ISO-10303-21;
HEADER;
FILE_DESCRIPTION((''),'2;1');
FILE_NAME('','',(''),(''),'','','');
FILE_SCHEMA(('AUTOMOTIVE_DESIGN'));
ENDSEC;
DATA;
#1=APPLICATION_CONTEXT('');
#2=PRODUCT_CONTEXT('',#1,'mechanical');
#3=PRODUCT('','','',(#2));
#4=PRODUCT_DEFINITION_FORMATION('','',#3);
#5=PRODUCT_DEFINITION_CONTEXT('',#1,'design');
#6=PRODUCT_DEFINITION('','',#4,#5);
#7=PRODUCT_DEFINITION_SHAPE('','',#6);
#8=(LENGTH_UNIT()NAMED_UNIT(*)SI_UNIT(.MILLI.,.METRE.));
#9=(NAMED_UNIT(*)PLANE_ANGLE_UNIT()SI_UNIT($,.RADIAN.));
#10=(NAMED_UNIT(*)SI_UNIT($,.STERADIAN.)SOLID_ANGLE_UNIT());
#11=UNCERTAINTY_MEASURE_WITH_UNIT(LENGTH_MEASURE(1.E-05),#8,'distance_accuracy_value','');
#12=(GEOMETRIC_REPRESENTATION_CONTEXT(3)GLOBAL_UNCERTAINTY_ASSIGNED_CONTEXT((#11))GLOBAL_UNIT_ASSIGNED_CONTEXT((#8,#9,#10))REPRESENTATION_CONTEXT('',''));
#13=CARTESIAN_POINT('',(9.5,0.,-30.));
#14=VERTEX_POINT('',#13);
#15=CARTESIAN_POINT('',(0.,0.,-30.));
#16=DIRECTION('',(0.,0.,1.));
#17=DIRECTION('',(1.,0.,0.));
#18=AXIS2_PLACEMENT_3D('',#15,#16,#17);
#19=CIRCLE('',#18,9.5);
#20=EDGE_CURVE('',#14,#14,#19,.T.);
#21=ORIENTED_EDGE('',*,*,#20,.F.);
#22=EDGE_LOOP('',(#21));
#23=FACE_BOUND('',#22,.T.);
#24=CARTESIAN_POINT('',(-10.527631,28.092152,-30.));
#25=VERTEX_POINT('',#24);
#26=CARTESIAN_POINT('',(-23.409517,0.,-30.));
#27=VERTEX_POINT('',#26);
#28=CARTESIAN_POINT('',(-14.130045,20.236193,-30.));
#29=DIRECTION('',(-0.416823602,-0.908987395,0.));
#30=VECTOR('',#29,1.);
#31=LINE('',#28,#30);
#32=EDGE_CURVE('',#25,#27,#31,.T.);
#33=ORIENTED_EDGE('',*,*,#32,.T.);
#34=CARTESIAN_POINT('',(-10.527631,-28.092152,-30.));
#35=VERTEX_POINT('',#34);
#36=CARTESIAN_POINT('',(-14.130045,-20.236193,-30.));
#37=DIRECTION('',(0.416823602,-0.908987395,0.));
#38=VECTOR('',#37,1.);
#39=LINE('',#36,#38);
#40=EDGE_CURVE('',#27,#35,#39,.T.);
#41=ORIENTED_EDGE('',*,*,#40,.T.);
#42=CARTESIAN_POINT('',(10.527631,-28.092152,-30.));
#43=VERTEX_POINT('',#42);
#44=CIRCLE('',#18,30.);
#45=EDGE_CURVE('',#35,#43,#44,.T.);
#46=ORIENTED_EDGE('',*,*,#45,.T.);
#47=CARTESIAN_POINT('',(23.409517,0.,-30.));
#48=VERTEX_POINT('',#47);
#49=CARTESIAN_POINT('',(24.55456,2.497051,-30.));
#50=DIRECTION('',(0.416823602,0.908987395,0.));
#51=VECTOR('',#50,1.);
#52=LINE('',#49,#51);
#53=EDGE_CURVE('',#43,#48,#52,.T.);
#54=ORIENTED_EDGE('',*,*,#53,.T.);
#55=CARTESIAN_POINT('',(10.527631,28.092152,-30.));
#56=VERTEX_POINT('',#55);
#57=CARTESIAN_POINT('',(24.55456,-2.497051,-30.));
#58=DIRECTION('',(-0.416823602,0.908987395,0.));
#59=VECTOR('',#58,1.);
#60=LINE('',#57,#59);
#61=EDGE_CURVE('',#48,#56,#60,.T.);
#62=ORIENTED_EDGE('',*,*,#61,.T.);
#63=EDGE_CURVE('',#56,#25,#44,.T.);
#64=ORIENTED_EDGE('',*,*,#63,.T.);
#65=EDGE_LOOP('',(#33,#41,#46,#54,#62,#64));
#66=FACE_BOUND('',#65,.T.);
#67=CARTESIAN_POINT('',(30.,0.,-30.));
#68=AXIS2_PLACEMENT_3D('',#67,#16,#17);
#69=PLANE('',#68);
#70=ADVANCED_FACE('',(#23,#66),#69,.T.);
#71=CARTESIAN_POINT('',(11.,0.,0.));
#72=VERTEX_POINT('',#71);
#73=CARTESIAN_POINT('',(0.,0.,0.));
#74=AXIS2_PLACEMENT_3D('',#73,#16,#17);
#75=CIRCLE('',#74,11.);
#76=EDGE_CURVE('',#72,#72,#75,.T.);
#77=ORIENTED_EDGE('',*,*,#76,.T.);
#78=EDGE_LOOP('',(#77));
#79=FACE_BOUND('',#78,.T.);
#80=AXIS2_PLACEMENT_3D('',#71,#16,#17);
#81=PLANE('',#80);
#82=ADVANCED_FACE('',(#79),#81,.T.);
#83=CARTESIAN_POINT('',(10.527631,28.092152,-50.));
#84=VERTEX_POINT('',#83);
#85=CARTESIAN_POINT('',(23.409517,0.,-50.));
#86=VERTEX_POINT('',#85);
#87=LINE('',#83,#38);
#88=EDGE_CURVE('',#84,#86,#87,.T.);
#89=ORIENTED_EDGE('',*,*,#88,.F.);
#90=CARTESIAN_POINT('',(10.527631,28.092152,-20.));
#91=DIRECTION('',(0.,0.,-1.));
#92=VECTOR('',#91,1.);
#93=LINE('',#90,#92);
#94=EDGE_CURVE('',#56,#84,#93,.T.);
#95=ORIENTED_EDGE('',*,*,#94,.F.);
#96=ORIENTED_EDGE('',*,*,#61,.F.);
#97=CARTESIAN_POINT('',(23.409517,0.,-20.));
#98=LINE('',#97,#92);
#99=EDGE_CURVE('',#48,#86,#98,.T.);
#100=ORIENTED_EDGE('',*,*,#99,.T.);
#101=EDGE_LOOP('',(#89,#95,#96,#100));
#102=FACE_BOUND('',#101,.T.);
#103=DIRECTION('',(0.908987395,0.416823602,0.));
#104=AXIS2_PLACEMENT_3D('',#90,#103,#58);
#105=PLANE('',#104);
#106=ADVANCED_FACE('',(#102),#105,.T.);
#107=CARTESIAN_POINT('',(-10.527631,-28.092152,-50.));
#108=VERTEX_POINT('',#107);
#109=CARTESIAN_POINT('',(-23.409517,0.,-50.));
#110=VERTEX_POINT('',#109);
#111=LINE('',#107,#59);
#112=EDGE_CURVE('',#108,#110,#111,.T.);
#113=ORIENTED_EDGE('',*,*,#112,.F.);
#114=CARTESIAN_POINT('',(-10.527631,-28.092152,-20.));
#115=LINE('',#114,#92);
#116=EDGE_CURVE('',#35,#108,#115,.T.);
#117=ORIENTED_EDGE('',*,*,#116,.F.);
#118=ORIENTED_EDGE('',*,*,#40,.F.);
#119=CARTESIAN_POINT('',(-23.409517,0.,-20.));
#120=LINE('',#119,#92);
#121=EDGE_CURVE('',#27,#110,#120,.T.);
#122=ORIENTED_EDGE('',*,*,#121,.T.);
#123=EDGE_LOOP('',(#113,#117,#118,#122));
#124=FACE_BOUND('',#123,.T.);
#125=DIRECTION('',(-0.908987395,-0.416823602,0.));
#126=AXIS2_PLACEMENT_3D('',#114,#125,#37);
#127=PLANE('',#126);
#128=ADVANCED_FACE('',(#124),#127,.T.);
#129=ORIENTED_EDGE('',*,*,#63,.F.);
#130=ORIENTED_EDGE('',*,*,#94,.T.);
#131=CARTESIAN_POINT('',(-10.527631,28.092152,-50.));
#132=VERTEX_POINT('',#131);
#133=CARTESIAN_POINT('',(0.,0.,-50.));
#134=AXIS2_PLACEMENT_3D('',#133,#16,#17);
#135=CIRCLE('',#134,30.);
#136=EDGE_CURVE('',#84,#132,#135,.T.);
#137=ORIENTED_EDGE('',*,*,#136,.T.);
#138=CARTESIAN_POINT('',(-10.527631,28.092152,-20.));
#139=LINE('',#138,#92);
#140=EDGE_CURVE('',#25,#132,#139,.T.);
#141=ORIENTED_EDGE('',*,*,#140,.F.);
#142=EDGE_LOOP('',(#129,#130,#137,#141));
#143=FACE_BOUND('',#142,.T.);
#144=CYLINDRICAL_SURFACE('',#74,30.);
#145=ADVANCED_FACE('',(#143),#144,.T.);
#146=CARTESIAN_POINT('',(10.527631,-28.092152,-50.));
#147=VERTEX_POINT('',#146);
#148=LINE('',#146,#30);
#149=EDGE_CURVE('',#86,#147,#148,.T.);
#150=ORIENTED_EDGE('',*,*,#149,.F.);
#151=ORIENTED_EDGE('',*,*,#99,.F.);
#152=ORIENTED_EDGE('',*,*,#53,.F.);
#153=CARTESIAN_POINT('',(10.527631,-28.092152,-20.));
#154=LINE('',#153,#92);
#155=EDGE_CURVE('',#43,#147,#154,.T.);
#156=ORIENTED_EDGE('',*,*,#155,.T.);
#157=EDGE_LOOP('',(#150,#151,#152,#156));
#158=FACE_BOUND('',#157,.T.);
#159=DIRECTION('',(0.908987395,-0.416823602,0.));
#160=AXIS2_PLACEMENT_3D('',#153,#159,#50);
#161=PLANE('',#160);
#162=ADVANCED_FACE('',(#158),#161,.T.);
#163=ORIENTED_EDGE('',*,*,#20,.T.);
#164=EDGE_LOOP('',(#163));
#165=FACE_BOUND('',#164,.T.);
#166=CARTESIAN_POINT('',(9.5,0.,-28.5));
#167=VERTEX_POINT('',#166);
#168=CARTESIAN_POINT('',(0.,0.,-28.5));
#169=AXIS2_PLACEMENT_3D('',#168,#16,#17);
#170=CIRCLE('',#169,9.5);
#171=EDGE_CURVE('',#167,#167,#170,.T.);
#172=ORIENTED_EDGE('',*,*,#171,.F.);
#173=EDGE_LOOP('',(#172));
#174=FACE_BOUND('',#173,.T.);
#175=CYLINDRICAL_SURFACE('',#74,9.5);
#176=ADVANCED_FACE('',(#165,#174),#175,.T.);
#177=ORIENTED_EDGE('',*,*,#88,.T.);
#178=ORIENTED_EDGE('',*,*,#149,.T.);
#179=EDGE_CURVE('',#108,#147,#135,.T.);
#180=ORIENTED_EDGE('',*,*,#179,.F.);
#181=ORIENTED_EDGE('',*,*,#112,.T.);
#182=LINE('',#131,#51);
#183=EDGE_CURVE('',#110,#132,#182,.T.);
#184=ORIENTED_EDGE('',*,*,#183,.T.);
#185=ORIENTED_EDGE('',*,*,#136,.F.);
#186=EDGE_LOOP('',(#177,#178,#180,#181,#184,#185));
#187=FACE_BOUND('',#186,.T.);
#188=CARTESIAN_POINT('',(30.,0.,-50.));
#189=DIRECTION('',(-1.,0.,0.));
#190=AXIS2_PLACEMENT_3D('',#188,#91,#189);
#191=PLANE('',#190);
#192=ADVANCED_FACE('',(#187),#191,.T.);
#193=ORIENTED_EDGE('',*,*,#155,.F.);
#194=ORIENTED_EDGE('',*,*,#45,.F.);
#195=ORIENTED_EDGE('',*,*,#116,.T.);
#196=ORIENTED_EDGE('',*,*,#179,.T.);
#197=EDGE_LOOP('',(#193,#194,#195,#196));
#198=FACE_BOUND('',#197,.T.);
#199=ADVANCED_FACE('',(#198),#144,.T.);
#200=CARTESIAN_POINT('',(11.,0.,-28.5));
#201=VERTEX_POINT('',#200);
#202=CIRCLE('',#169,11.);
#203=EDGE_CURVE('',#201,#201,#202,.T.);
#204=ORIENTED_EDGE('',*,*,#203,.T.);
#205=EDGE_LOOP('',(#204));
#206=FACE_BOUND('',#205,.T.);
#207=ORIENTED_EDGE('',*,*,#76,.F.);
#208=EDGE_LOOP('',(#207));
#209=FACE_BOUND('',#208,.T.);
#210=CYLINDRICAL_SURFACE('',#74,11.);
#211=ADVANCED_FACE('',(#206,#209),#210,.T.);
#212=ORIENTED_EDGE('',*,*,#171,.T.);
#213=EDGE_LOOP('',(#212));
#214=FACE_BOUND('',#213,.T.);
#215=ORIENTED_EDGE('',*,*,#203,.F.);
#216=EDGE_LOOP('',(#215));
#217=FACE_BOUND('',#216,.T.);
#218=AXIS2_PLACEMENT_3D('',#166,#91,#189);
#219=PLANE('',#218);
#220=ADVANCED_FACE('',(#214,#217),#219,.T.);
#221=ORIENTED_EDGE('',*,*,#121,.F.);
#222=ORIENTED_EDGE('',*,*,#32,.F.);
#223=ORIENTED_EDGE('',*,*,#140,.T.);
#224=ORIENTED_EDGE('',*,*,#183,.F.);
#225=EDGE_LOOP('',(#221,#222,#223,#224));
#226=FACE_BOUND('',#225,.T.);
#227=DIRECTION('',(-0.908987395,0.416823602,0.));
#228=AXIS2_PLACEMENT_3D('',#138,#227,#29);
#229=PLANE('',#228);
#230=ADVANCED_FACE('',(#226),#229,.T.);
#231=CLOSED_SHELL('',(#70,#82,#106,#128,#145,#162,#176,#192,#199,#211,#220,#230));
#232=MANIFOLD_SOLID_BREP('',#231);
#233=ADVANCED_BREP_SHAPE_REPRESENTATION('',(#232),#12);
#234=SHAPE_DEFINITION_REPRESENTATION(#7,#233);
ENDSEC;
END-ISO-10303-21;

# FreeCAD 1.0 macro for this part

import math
import FreeCAD as App
import Part
import Sketcher
from FreeCAD import Vector

doc = App.newDocument("Part")
body = doc.addObject("PartDesign::Body", "Body")

# Sketch on XZ plane
sketch1 = body.newObject("Sketcher::SketchObject", "Sketch")
sketch1.AttachmentSupport = (doc.getObject("XZ_Plane"), [""])
sketch1.MapMode = "FlatFace"
sketch1.addGeometry([
    Part.LineSegment(Vector(0, -50, 0), Vector(0, 0, 0)),  # 0
    Part.LineSegment(Vector(0, 0, 0), Vector(11, 0, 0)),  # 1
    Part.LineSegment(Vector(11, 0, 0), Vector(11, -28.5, 0)),  # 2
    Part.LineSegment(Vector(11, -28.5, 0), Vector(9.5, -28.5, 0)),  # 3
    Part.LineSegment(Vector(9.5, -28.5, 0), Vector(9.5, -30, 0)),  # 4
    Part.LineSegment(Vector(9.5, -30, 0), Vector(30, -30, 0)),  # 5
    Part.LineSegment(Vector(30, -30, 0), Vector(30, -50, 0)),  # 6
    Part.LineSegment(Vector(30, -50, 0), Vector(0, -50, 0)),  # 7
], False)
sketch1.addConstraint([
    Sketcher.Constraint("Coincident", 0, 2, 1, 1),
    Sketcher.Constraint("Coincident", 1, 2, 2, 1),
    Sketcher.Constraint("Coincident", 2, 2, 3, 1),
    Sketcher.Constraint("Coincident", 3, 2, 4, 1),
    Sketcher.Constraint("Coincident", 4, 2, 5, 1),
    Sketcher.Constraint("Coincident", 5, 2, 6, 1),
    Sketcher.Constraint("Coincident", 6, 2, 7, 1),
    Sketcher.Constraint("Coincident", 7, 2, 0, 1),
    Sketcher.Constraint("Vertical", 0),
    Sketcher.Constraint("Horizontal", 1),
    Sketcher.Constraint("Vertical", 2),
    Sketcher.Constraint("Horizontal", 3),
    Sketcher.Constraint("Vertical", 4),
    Sketcher.Constraint("Horizontal", 5),
    Sketcher.Constraint("Vertical", 6),
    Sketcher.Constraint("Horizontal", 7),
    Sketcher.Constraint("Coincident", 0, 2, -1, 1),
    Sketcher.Constraint("Equal", 3, 4),
    Sketcher.Constraint("DistanceX", 1, 1, 1, 2, 11.0),
    Sketcher.Constraint("DistanceX", 7, 2, 7, 1, 30.0),
    Sketcher.Constraint("DistanceY", 0, 1, 0, 2, 50.0),
    Sketcher.Constraint("DistanceY", 6, 2, 6, 1, 20.0),
    Sketcher.Constraint("DistanceX", 3, 2, 3, 1, 1.5),
])
revolution = body.newObject("PartDesign::Revolution", "Revolution")
revolution.Profile = sketch1
revolution.ReferenceAxis = (sketch1, ["V_Axis"])
revolution.Angle = 360

# Sketch on XY plane
sketch2 = body.newObject("Sketcher::SketchObject", "Sketch001")
sketch2.AttachmentSupport = (doc.getObject("XY_Plane"), [""])
sketch2.MapMode = "FlatFace"
sketch2.AttachmentOffset = App.Placement(Vector(0, 0, -20), App.Rotation())
sketch2.addGeometry([
    Part.Circle(Vector(0, 0, 0), Vector(0, 0, 1), 36),  # 0
    Part.LineSegment(Vector(23, 0, 0), Vector(11, 28, 0)),  # 1
    Part.ArcOfCircle(Part.Circle(Vector(0, 0, 0), Vector(0, 0, 1), 30), math.radians(69), math.radians(111)),  # 2
    Part.LineSegment(Vector(-11, 28, 0), Vector(-23, 0, 0)),  # 3
    Part.LineSegment(Vector(-23, 0, 0), Vector(-11, -28, 0)),  # 4
    Part.ArcOfCircle(Part.Circle(Vector(0, 0, 0), Vector(0, 0, 1), 30), math.radians(-111), math.radians(-69)),  # 5
    Part.LineSegment(Vector(11, -28, 0), Vector(23, 0, 0)),  # 6
], False)
sketch2.addConstraint([
    Sketcher.Constraint("Coincident", 1, 2, 2, 1),
    Sketcher.Constraint("Coincident", 2, 2, 3, 1),
    Sketcher.Constraint("Coincident", 3, 2, 4, 1),
    Sketcher.Constraint("Coincident", 4, 2, 5, 1),
    Sketcher.Constraint("Coincident", 5, 2, 6, 1),
    Sketcher.Constraint("Coincident", 6, 2, 1, 1),
    Sketcher.Constraint("Coincident", 0, 3, -1, 1),
    Sketcher.Constraint("Coincident", 2, 3, -1, 1),
    Sketcher.Constraint("Coincident", 5, 3, -1, 1),
    Sketcher.Constraint("Equal", 2, 5),
    Sketcher.Constraint("Symmetric", 3, 2, 6, 2, -1, 1),
    Sketcher.Constraint("PointOnObject", 3, 2, -1),
    Sketcher.Constraint("Parallel", 1, 4),
    Sketcher.Constraint("Parallel", 3, 6),
    Sketcher.Constraint("Horizontal", 1, 2, 2, 2),
    Sketcher.Constraint("Radius", 2, 30.0),
    Sketcher.Constraint("Diameter", 0, 72.478641),
    Sketcher.Constraint("DistanceX", -1, 1, 1, 2, 10.527631),
    Sketcher.Constraint("Distance", 1, 30.904886),
])
pocket1 = body.newObject("PartDesign::Pocket", "Pocket")
pocket1.Profile = sketch2
pocket1.Length = 30

doc.recompute()
